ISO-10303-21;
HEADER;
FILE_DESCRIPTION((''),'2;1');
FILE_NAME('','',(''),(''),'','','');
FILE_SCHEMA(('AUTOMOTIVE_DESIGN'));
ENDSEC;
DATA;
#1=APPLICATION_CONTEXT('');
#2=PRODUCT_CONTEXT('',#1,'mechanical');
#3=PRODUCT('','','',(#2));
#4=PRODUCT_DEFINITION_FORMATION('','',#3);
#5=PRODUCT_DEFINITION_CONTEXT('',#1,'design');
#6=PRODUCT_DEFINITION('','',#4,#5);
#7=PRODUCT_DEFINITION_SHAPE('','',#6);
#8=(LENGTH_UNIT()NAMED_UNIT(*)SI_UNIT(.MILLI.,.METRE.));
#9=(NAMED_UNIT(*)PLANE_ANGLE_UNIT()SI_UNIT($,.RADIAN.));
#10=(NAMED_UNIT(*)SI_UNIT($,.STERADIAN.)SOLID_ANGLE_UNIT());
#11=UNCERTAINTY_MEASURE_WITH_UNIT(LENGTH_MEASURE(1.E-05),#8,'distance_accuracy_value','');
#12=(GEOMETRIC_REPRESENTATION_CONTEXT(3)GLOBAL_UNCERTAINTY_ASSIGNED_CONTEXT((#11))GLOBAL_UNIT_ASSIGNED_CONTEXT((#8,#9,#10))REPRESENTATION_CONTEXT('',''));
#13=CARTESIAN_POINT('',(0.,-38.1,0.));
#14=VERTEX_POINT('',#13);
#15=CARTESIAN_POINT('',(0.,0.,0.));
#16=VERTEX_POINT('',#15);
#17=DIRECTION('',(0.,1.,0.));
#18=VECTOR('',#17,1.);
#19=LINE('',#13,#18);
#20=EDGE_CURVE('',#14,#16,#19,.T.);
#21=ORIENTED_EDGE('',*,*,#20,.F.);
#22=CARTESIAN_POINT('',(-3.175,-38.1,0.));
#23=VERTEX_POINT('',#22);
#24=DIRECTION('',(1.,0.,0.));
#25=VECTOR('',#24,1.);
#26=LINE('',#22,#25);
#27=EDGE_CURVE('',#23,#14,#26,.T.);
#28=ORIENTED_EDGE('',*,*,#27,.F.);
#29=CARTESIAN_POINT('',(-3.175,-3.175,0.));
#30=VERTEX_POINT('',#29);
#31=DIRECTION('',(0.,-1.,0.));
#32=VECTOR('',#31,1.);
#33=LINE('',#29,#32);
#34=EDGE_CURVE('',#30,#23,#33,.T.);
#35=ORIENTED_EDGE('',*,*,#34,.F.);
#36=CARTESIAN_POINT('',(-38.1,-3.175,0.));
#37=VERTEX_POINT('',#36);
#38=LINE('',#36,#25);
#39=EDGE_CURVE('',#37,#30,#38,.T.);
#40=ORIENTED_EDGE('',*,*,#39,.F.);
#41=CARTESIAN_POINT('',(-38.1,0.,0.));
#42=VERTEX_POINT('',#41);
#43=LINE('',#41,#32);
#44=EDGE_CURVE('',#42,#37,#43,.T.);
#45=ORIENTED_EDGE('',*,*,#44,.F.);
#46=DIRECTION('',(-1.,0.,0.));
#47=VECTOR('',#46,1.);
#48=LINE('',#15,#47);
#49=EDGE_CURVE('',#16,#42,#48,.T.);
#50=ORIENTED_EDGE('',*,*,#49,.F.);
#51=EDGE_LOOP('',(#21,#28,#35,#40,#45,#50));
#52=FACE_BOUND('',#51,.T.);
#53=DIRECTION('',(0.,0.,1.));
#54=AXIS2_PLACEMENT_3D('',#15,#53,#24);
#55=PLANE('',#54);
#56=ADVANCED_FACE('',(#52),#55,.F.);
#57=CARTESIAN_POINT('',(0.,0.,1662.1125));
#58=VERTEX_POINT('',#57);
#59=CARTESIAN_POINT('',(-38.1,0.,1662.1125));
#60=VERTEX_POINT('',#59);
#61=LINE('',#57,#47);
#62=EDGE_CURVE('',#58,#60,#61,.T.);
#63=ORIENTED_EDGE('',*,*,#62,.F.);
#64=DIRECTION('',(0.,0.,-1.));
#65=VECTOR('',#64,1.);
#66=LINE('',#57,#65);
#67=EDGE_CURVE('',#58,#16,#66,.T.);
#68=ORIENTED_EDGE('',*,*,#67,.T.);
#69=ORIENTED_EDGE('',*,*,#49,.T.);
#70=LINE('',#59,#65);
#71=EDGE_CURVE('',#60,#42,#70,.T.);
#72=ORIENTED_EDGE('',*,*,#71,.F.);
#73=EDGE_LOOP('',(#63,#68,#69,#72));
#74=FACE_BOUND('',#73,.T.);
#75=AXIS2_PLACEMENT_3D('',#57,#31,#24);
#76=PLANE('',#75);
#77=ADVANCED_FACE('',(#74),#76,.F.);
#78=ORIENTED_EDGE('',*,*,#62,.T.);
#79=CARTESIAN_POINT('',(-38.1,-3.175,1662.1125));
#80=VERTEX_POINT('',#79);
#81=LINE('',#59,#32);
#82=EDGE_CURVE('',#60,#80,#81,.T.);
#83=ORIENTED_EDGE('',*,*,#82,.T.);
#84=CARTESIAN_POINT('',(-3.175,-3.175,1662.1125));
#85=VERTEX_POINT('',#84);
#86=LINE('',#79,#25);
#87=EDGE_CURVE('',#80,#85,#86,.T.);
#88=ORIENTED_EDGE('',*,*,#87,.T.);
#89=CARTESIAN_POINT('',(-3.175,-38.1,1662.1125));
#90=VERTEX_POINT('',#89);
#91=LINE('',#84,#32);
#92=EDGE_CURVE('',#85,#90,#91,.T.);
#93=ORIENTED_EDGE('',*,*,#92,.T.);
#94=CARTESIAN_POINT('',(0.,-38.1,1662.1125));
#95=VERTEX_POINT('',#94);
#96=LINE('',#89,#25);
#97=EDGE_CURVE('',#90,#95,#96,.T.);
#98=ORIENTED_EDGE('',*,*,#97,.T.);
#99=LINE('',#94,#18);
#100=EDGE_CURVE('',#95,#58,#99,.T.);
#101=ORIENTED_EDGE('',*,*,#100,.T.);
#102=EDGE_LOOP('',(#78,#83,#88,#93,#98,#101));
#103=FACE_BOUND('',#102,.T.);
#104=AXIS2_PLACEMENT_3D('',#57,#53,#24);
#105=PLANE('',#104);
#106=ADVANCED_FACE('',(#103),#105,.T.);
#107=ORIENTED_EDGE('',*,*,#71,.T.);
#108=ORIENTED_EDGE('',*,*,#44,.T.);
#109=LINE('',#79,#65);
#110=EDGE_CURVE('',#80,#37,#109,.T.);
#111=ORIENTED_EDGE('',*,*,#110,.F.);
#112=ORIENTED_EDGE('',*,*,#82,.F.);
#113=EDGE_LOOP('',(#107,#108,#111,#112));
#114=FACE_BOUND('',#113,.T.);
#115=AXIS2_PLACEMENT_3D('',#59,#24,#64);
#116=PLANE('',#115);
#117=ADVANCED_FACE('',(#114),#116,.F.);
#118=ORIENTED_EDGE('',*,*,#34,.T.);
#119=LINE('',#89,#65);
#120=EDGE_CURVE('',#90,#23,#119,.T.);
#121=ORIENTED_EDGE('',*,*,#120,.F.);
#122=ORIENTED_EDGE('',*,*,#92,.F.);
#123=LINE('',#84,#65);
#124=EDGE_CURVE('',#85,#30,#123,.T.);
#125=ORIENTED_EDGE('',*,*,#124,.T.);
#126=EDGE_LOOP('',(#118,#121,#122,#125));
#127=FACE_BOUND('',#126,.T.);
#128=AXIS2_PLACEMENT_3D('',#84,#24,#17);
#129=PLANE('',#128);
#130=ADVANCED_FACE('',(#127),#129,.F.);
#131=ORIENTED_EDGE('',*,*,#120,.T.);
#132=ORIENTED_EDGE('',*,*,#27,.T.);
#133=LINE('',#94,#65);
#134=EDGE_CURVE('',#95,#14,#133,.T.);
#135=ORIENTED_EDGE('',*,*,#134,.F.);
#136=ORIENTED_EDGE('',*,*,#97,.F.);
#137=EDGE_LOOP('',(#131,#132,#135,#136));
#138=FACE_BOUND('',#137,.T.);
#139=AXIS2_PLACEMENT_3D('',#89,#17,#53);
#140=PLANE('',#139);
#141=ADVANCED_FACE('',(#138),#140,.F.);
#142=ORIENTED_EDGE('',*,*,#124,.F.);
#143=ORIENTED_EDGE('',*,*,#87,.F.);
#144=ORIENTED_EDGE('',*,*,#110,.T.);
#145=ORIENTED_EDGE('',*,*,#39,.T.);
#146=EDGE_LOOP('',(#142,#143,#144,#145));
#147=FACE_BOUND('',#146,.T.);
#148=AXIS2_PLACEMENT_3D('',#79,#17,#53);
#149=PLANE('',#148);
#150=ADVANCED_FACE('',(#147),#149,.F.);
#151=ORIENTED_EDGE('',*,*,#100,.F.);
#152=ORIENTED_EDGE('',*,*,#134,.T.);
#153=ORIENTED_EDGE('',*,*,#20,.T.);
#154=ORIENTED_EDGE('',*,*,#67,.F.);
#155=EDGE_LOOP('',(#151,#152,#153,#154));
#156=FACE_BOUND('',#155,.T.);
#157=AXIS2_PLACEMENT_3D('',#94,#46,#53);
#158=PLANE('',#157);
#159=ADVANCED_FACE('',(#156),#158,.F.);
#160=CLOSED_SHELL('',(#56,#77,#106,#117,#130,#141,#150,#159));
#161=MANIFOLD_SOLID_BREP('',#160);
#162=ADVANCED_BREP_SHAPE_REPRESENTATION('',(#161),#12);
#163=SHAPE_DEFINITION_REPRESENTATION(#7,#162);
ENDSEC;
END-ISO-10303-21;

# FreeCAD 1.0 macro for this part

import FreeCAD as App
import Part
import Sketcher
Q = App.Units.Quantity

doc = App.newDocument("Part")
body = doc.addObject("PartDesign::Body", "Body")

sketch1 = body.newObject("Sketcher::SketchObject", "Sketch")
sketch1.AttachmentSupport = (doc.getObject("XY_Plane"), [""])
sketch1.MapMode = "FlatFace"
sketch1.addGeometry([
    Part.LineSegment(App.Vector(0, 0, 0), App.Vector(-38.1, 0, 0)),
    Part.LineSegment(App.Vector(-38.1, 0, 0), App.Vector(-38.1, -3.175, 0)),
    Part.LineSegment(App.Vector(-38.1, -3.175, 0), App.Vector(-3.175, -3.175, 0)),
    Part.LineSegment(App.Vector(-3.175, -3.175, 0), App.Vector(-3.175, -38.1, 0)),
    Part.LineSegment(App.Vector(-3.175, -38.1, 0), App.Vector(0, -38.1, 0)),
    Part.LineSegment(App.Vector(0, -38.1, 0), App.Vector(0, 0, 0)),
], False)
sketch1.addConstraint([
    Sketcher.Constraint("Coincident", 0, 2, 1, 1),
    Sketcher.Constraint("Coincident", 1, 2, 2, 1),
    Sketcher.Constraint("Coincident", 2, 2, 3, 1),
    Sketcher.Constraint("Coincident", 3, 2, 4, 1),
    Sketcher.Constraint("Coincident", 4, 2, 5, 1),
    Sketcher.Constraint("Coincident", 5, 2, 0, 1),
    Sketcher.Constraint("Horizontal", 0),
    Sketcher.Constraint("Vertical", 1),
    Sketcher.Constraint("Horizontal", 2),
    Sketcher.Constraint("Vertical", 3),
    Sketcher.Constraint("Horizontal", 4),
    Sketcher.Constraint("Vertical", 5),
    Sketcher.Constraint("Coincident", 5, 2, -1, 1),
    Sketcher.Constraint("Equal", 4, 1),
    Sketcher.Constraint("Equal", 2, 3),
    Sketcher.Constraint("DistanceX", 0, 2, 0, 1, Q("1.5 in")),
    Sketcher.Constraint("DistanceX", 2, 1, 2, 2, Q("1.375 in")),
])
pad1 = body.newObject("PartDesign::Pad", "Pad")
pad1.Profile = sketch1
pad1.Length = Q("65.4375 in")

doc.recompute()
